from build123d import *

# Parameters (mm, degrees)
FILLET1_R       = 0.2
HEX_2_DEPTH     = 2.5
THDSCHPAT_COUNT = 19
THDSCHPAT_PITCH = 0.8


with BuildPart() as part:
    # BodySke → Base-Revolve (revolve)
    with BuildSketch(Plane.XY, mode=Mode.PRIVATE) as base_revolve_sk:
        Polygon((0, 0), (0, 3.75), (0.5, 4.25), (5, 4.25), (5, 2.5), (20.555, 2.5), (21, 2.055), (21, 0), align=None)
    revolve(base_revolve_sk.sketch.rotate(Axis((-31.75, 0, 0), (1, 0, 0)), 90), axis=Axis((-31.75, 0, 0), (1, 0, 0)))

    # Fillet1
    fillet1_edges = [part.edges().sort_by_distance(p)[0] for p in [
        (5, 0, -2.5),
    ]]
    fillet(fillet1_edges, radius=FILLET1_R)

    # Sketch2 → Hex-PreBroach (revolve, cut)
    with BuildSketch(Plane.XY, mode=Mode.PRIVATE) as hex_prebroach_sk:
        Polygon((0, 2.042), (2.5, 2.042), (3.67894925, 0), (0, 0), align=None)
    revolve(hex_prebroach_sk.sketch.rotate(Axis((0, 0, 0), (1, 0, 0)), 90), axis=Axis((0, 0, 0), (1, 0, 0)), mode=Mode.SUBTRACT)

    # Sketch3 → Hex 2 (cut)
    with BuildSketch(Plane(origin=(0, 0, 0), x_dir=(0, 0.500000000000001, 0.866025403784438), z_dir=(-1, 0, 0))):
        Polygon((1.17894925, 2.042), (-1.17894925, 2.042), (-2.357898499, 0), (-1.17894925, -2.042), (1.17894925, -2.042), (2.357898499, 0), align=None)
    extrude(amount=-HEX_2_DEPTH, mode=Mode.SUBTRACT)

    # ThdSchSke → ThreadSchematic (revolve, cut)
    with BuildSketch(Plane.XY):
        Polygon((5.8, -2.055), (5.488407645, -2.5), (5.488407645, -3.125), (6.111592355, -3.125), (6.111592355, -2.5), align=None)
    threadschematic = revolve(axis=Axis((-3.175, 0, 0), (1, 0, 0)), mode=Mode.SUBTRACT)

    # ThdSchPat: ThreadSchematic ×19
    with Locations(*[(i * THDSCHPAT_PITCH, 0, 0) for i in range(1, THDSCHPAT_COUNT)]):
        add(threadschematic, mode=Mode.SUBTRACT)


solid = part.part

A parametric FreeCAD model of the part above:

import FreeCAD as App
import Part
import Sketcher
from FreeCAD import Vector
Q = App.Units.Quantity


def edges_at(feature, points):
    """Names of the edges that pass closest to the given points."""
    edges = feature.Shape.Edges
    near = lambda p: min(range(len(edges)), key=lambda i: edges[i].distToShape(Part.Vertex(*p))[0])
    return sorted({f"Edge{near(p) + 1}" for p in points})


def add_polygon(sketch, points):
    """Adds a closed chain of lines whose ends are joined by coincident constraints."""
    first, n = sketch.GeometryCount, len(points)
    for a, b in zip(points, points[1:] + points[:1]):
        sketch.addGeometry(Part.LineSegment(App.Vector(*a, 0), App.Vector(*b, 0)), False)
    for i in range(n):
        sketch.addConstraint(Sketcher.Constraint("Coincident", first + i, 2, first + (i + 1) % n, 1))

doc = App.newDocument("Part")
body = doc.addObject("PartDesign::Body", "Body")

# Sketch on XY plane
sketch1 = doc.addObject("Sketcher::SketchObject", "Sketch")
body.addObject(sketch1)
sketch1.AttachmentSupport = (doc.XY_Plane, [""])
sketch1.MapMode = "FlatFace"
add_polygon(sketch1, [(0, 3.75), (0, 0), (21, 0), (21, 2.055), (20.555, 2.5), (5, 2.5), (5, 4.25), (0.5, 4.25)])  # lines 0-7
sketch1.addConstraint([
    Sketcher.Constraint("Vertical", 0),
    Sketcher.Constraint("Horizontal", 1),
    Sketcher.Constraint("Vertical", 2),
    Sketcher.Constraint("Horizontal", 4),
    Sketcher.Constraint("Vertical", 5),
    Sketcher.Constraint("Horizontal", 6),
    Sketcher.Constraint("Coincident", 0, 2, -1, 1),
    Sketcher.Constraint("Perpendicular", 3, 7),
    Sketcher.Constraint("DistanceX", 1, 1, 1, 2, Q("21 mm")),
    Sketcher.Constraint("Angle", 3, Q("135 deg")),
    Sketcher.Constraint("DistanceX", 6, 2, 6, 1, Q("4.5 mm")),
    Sketcher.Constraint("DistanceX", -1, 1, 4, 2, Q("5 mm")),
    Sketcher.Constraint("DistanceY", 0, 2, 0, 1, Q("3.75 mm")),
    Sketcher.Constraint("DistanceY", 5, 1, 5, 2, Q("1.75 mm")),
    Sketcher.Constraint("DistanceX", 4, 2, 4, 1, Q("15.555 mm")),
])
revolution = doc.addObject("PartDesign::Revolution", "Revolution")
body.addObject(revolution)
revolution.Profile = sketch1
revolution.ReferenceAxis = (sketch1, ["H_Axis"])
revolution.Angle = 360
doc.recompute()

fillet = doc.addObject("PartDesign::Fillet", "Fillet")
body.addObject(fillet)
fillet.Base = (revolution, edges_at(revolution, [(5, 0, -2.5)]))
fillet.Radius = 0.2

# Sketch on XY plane
sketch2 = doc.addObject("Sketcher::SketchObject", "Sketch001")
body.addObject(sketch2)
sketch2.AttachmentSupport = (doc.XY_Plane, [""])
sketch2.MapMode = "FlatFace"
add_polygon(sketch2, [(2.5, 2.042), (0, 2.042), (0, 0), (3.678949, 0)])  # lines 0-3
sketch2.addConstraint([
    Sketcher.Constraint("Horizontal", 0),
    Sketcher.Constraint("Vertical", 1),
    Sketcher.Constraint("Horizontal", 2),
    Sketcher.Constraint("Coincident", 1, 2, -1, 1),
    Sketcher.Constraint("Angle", 3, Q("120 deg")),
    Sketcher.Constraint("DistanceX", 0, 2, 0, 1, Q("2.5 mm")),
    Sketcher.Constraint("DistanceY", 1, 2, 1, 1, Q("2.042 mm")),
])
groove = doc.addObject("PartDesign::Groove", "Groove")
body.addObject(groove)
groove.Profile = sketch2
groove.ReferenceAxis = (sketch2, ["H_Axis"])
groove.Angle = 360

# Sketch on YZ plane
sketch3 = doc.addObject("Sketcher::SketchObject", "Sketch002")
body.addObject(sketch3)
sketch3.AttachmentSupport = (doc.YZ_Plane, [""])
sketch3.MapMode = "FlatFace"
add_polygon(sketch3, [(2.357899, 0), (1.178949, -2.042), (-1.178949, -2.042), (-2.357899, 0), (-1.178949, 2.042), (1.178949, 2.042)])  # lines 0-5
sketch3.addConstraint([
    Sketcher.Constraint("Horizontal", 1),
    Sketcher.Constraint("Horizontal", 4),
    Sketcher.Constraint("Symmetric", 0, 2, 3, 2, -1, 1),
    Sketcher.Constraint("Symmetric", 2, 2, 5, 2, -1, 1),
    Sketcher.Constraint("PointOnObject", 2, 2, -1),
    Sketcher.Constraint("Parallel", 2, 5),
    Sketcher.Constraint("Vertical", 1, 2, 3, 2),
    Sketcher.Constraint("Angle", 0, Q("-120 deg")),
    Sketcher.Constraint("DistanceX", 1, 2, 1, 1, Q("2.357899 mm")),
    Sketcher.Constraint("DistanceY", 0, 2, -1, 1, Q("2.042 mm")),
])
pocket1 = doc.addObject("PartDesign::Pocket", "Pocket")
body.addObject(pocket1)
pocket1.Profile = sketch3
pocket1.Length = 2.5
pocket1.Reversed = True

# Sketch on XY plane
sketch4 = doc.addObject("Sketcher::SketchObject", "Sketch003")
body.addObject(sketch4)
sketch4.AttachmentSupport = (doc.XY_Plane, [""])
sketch4.MapMode = "FlatFace"
add_polygon(sketch4, [(5.8, -2.055), (5.488408, -2.5), (5.488408, -3.125), (6.111592, -3.125), (6.111592, -2.5)])  # lines 0-4
sketch4.addConstraint([
    Sketcher.Constraint("Vertical", 1),
    Sketcher.Constraint("Horizontal", 2),
    Sketcher.Constraint("Vertical", 3),
    Sketcher.Constraint("Horizontal", 0, 2, 3, 2),
    Sketcher.Constraint("Equal", 0, 4),
    Sketcher.Constraint("Angle", 0, Q("-125 deg")),
    Sketcher.Constraint("DistanceY", 0, 2, -1, 1, Q("2.5 mm")),
    Sketcher.Constraint("DistanceX", -1, 1, 4, 2, Q("5.8 mm")),
    Sketcher.Constraint("DistanceY", 1, 2, 1, 1, Q("0.625 mm")),
    Sketcher.Constraint("DistanceY", 1, 2, 4, 2, Q("1.07 mm")),
])
groove2 = doc.addObject("PartDesign::Groove", "Groove001")
body.addObject(groove2)
groove2.Profile = sketch4
groove2.ReferenceAxis = (sketch4, ["H_Axis"])
groove2.Angle = 360
doc.recompute()

linearpattern = doc.addObject("PartDesign::LinearPattern", "LinearPattern")
body.addObject(linearpattern)
linearpattern.Originals = [groove2]
linearpattern.Direction = (doc.X_Axis, [""])
linearpattern.Mode = "offset"
linearpattern.Offset = 0.8
linearpattern.Occurrences = 19
body.Tip = linearpattern

doc.recompute()
